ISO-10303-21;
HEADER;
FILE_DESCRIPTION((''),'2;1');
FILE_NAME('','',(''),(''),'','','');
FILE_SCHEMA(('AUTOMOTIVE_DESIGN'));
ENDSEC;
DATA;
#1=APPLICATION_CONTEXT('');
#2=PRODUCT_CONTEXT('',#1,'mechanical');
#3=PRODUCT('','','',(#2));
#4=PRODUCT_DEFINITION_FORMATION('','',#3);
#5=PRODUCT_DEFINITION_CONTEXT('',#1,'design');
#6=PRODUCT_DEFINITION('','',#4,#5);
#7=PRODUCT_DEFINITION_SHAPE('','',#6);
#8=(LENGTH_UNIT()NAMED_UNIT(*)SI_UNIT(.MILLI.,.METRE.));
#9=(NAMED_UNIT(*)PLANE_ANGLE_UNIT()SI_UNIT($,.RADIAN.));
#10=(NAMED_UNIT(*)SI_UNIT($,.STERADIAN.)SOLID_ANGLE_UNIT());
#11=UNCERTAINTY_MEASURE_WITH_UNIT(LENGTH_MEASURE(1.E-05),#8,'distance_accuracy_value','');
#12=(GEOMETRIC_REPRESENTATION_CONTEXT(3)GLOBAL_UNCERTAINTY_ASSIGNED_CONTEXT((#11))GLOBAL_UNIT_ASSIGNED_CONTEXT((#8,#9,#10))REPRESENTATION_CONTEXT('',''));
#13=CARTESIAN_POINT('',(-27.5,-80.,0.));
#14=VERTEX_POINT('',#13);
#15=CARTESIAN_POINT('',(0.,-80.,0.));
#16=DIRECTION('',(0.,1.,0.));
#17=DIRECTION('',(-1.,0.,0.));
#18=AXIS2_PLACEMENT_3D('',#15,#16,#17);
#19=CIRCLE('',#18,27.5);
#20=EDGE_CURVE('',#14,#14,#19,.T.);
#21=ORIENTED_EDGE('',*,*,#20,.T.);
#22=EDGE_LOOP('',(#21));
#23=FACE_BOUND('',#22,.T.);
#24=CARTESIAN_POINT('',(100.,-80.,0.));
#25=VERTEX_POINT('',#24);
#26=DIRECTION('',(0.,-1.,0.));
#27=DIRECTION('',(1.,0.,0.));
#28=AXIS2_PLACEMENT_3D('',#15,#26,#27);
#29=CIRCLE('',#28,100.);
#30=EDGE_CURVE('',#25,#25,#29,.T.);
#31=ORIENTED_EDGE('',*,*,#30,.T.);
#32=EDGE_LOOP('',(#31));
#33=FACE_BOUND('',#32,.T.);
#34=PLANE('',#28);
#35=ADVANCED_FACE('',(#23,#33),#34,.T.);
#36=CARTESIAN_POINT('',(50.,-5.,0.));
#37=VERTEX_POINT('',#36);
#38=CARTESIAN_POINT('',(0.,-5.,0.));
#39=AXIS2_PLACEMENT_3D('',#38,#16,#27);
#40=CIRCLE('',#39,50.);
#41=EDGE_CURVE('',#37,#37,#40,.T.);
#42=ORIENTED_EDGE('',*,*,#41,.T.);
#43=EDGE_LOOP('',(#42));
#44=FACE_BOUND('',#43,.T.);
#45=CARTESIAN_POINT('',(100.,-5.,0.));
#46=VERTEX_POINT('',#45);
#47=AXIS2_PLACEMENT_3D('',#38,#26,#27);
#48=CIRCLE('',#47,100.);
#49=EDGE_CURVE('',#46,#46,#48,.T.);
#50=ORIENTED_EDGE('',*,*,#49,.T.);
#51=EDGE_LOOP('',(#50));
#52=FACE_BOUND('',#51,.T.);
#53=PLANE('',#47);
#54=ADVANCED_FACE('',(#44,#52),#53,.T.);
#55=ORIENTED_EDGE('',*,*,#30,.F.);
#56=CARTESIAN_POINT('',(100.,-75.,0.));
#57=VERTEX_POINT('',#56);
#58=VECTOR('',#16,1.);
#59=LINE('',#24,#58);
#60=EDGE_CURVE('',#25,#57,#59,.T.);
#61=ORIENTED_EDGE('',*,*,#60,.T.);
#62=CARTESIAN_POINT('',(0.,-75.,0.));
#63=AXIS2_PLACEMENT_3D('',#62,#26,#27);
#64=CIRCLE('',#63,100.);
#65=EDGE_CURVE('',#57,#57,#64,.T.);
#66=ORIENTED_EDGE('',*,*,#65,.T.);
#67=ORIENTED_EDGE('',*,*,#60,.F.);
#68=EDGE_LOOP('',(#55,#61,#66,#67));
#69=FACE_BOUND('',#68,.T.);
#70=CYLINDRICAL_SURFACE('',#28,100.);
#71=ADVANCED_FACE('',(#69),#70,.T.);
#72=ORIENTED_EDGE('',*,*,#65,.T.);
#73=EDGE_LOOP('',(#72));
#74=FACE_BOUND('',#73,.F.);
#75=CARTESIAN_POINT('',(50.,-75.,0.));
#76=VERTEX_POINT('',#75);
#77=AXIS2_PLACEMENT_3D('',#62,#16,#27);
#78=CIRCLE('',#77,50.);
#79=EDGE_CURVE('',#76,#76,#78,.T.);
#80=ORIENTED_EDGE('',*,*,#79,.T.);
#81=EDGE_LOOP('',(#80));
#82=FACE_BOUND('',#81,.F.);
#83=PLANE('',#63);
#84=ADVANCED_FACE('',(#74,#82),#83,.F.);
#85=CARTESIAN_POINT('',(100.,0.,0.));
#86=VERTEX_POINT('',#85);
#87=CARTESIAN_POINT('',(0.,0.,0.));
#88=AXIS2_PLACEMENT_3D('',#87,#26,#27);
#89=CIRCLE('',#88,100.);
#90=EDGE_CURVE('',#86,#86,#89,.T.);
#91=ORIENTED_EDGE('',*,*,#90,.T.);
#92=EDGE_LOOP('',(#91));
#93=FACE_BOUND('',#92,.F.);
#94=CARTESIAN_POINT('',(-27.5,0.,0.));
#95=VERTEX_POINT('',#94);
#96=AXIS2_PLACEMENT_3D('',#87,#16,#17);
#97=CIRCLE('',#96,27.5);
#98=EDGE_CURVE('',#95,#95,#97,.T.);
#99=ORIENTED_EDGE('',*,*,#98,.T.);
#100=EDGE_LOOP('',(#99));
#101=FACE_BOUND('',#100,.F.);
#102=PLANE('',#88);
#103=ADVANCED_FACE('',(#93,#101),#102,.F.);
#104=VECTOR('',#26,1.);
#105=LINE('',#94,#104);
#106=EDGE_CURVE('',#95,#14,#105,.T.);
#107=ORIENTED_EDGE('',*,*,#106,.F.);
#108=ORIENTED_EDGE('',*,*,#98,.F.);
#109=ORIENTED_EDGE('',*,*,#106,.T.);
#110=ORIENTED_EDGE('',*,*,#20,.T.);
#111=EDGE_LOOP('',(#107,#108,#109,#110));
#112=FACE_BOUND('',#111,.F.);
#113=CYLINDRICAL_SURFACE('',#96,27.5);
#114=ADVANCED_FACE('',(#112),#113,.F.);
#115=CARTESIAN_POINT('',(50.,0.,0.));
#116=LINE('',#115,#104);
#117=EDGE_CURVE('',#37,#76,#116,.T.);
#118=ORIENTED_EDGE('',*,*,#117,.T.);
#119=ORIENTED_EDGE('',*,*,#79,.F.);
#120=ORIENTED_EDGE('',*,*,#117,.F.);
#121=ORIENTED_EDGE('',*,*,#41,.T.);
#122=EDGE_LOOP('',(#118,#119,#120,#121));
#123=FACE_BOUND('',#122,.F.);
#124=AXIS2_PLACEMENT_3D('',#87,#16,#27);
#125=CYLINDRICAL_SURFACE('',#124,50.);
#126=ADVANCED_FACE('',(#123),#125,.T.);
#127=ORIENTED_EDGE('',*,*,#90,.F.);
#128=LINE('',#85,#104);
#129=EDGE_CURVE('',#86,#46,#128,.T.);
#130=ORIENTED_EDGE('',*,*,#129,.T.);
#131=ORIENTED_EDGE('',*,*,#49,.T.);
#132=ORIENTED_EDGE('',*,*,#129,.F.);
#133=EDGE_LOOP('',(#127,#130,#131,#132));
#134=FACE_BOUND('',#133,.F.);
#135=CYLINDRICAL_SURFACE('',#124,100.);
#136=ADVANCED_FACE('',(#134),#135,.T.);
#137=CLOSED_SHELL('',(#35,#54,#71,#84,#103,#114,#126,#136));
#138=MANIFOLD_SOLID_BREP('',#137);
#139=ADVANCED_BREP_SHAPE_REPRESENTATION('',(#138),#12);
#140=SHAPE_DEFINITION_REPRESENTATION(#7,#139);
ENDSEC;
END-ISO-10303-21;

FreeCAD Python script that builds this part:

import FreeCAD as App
import Part
import Sketcher

V = App.Vector
Q = App.Units.Quantity

doc = App.newDocument("Part")
body = doc.addObject("PartDesign::Body", "Body")

sketch1 = doc.addObject("Sketcher::SketchObject", "Sketch")
body.addObject(sketch1)
sketch1.AttachmentSupport = (doc.XZ_Plane, [""])
sketch1.MapMode = "FlatFace"
sketch1.addGeometry(Part.Circle(V(0, 0, 0), V(0, 0, 1), 50), False)
sketch1.addConstraint([
    Sketcher.Constraint("Coincident", 0, 3, -1, 1),
    Sketcher.Constraint("Diameter", 0, Q("100 mm")),
])
pad1 = doc.addObject("PartDesign::Pad", "Pad")
body.addObject(pad1)
pad1.Profile = sketch1
pad1.Length = 80

sketch2 = doc.addObject("Sketcher::SketchObject", "Sketch001")
body.addObject(sketch2)
sketch2.AttachmentSupport = (doc.XZ_Plane, [""])
sketch2.MapMode = "FlatFace"
sketch2.addGeometry(Part.Circle(V(0, 0, 0), V(0, 0, 1), 100), False)
sketch2.addConstraint([
    Sketcher.Constraint("Coincident", 0, 3, -1, 1),
    Sketcher.Constraint("Diameter", 0, Q("200 mm")),
])
pad2 = doc.addObject("PartDesign::Pad", "Pad001")
body.addObject(pad2)
pad2.Profile = sketch2
pad2.Length = 5

sketch3 = doc.addObject("Sketcher::SketchObject", "Sketch002")
body.addObject(sketch3)
sketch3.AttachmentSupport = (doc.XZ_Plane, [""])
sketch3.MapMode = "FlatFace"
sketch3.AttachmentOffset = App.Placement(V(0, 0, 80), App.Rotation())
sketch3.addGeometry(Part.Circle(V(0, 0, 0), V(0, 0, 1), 100), False)
sketch3.addConstraint([
    Sketcher.Constraint("Coincident", 0, 3, -1, 1),
    Sketcher.Constraint("Diameter", 0, Q("200 mm")),
])
pad3 = doc.addObject("PartDesign::Pad", "Pad002")
body.addObject(pad3)
pad3.Profile = sketch3
pad3.Length = 5
pad3.Reversed = True

sketch4 = doc.addObject("Sketcher::SketchObject", "Sketch003")
body.addObject(sketch4)
sketch4.AttachmentSupport = (doc.XZ_Plane, [""])
sketch4.MapMode = "FlatFace"
sketch4.addGeometry(Part.Circle(V(0, 0, 0), V(0, 0, 1), 28), False)
sketch4.addConstraint([
    Sketcher.Constraint("Coincident", 0, 3, -1, 1),
    Sketcher.Constraint("Diameter", 0, Q("55 mm")),
])
pocket1 = doc.addObject("PartDesign::Pocket", "Pocket")
body.addObject(pocket1)
pocket1.Profile = sketch4
pocket1.Length = 100
pocket1.Reversed = True

doc.recompute()
